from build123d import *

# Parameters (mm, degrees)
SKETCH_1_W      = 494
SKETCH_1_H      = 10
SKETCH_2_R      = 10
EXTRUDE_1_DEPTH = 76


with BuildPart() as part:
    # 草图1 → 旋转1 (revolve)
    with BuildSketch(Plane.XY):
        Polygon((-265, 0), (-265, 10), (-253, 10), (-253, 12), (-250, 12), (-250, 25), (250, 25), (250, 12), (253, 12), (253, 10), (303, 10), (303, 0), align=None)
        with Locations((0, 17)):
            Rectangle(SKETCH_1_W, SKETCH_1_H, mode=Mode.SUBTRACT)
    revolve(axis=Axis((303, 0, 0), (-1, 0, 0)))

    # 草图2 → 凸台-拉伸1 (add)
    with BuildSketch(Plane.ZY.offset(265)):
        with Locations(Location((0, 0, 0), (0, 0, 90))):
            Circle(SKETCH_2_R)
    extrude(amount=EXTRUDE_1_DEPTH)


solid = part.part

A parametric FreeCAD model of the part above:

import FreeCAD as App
import Part
import Sketcher
from FreeCAD import Vector
Q = App.Units.Quantity


def add_polygon(sketch, points):
    """Adds a closed chain of lines whose ends are joined by coincident constraints."""
    first, n = sketch.GeometryCount, len(points)
    for a, b in zip(points, points[1:] + points[:1]):
        sketch.addGeometry(Part.LineSegment(App.Vector(*a, 0), App.Vector(*b, 0)), False)
    for i in range(n):
        sketch.addConstraint(Sketcher.Constraint("Coincident", first + i, 2, first + (i + 1) % n, 1))

doc = App.newDocument("Part")
body = doc.addObject("PartDesign::Body", "Body")

# Sketch on XY plane
sketch1 = body.newObject("Sketcher::SketchObject", "Sketch")
sketch1.AttachmentSupport = (doc.getObject("XY_Plane"), [""])
sketch1.MapMode = "FlatFace"
add_polygon(sketch1, [(-265, 10), (-265, 0), (303, 0), (303, 10), (253, 10), (253, 12), (250, 12), (250, 25), (-250, 25), (-250, 12), (-253, 12), (-253, 10)])  # lines 0-11
add_polygon(sketch1, [(-247, 12), (-247, 22), (247, 22), (247, 12)])  # lines 12-15
sketch1.addConstraint([
    Sketcher.Constraint("Vertical", 0),
    Sketcher.Constraint("Horizontal", 1),
    Sketcher.Constraint("Vertical", 2),
    Sketcher.Constraint("Horizontal", 3),
    Sketcher.Constraint("Vertical", 4),
    Sketcher.Constraint("Horizontal", 5),
    Sketcher.Constraint("Vertical", 6),
    Sketcher.Constraint("Horizontal", 7),
    Sketcher.Constraint("Vertical", 8),
    Sketcher.Constraint("Horizontal", 9),
    Sketcher.Constraint("Vertical", 10),
    Sketcher.Constraint("Horizontal", 11),
    Sketcher.Constraint("Vertical", 12),
    Sketcher.Constraint("Horizontal", 13),
    Sketcher.Constraint("Vertical", 14),
    Sketcher.Constraint("Horizontal", 15),
    Sketcher.Constraint("Symmetric", 5, 2, 8, 2, -2),
    Sketcher.Constraint("Symmetric", 3, 2, 10, 2, -2),
    Sketcher.Constraint("PointOnObject", 0, 2, -1),
    Sketcher.Constraint("Horizontal", 9, 2, 14, 2),
    Sketcher.Constraint("Equal", 2, 12),
    Sketcher.Constraint("DistanceX", 1, 1, 1, 2, Q("568 mm")),
    Sketcher.Constraint("DistanceX", 3, 2, 3, 1, Q("50 mm")),
    Sketcher.Constraint("DistanceX", 5, 2, 5, 1, Q("3 mm")),
    Sketcher.Constraint("DistanceX", 7, 2, 7, 1, Q("500 mm")),
    Sketcher.Constraint("DistanceX", 13, 1, 13, 2, Q("494 mm")),
    Sketcher.Constraint("DistanceY", 0, 2, 0, 1, Q("10 mm")),
    Sketcher.Constraint("DistanceY", 4, 1, 4, 2, Q("2 mm")),
    Sketcher.Constraint("DistanceY", 6, 1, 6, 2, Q("13 mm")),
    Sketcher.Constraint("DistanceX", 12, 2, -1, 1, Q("247 mm")),
])
revolution = body.newObject("PartDesign::Revolution", "Revolution")
revolution.Profile = sketch1
revolution.ReferenceAxis = (sketch1, ["H_Axis"])
revolution.Angle = 360

# Sketch on YZ plane
sketch2 = body.newObject("Sketcher::SketchObject", "Sketch001")
sketch2.AttachmentSupport = (doc.getObject("YZ_Plane"), [""])
sketch2.MapMode = "FlatFace"
sketch2.AttachmentOffset = App.Placement(Vector(0, 0, -265), App.Rotation())
sketch2.addGeometry(Part.Circle(Vector(0, 0, 0), Vector(0, 0, 1), 10), False)
sketch2.addConstraint([
    Sketcher.Constraint("Coincident", 0, 3, -1, 1),
    Sketcher.Constraint("Diameter", 0, Q("20 mm")),
])
pad1 = body.newObject("PartDesign::Pad", "Pad")
pad1.Profile = sketch2
pad1.Length = 76
pad1.Reversed = True

doc.recompute()
